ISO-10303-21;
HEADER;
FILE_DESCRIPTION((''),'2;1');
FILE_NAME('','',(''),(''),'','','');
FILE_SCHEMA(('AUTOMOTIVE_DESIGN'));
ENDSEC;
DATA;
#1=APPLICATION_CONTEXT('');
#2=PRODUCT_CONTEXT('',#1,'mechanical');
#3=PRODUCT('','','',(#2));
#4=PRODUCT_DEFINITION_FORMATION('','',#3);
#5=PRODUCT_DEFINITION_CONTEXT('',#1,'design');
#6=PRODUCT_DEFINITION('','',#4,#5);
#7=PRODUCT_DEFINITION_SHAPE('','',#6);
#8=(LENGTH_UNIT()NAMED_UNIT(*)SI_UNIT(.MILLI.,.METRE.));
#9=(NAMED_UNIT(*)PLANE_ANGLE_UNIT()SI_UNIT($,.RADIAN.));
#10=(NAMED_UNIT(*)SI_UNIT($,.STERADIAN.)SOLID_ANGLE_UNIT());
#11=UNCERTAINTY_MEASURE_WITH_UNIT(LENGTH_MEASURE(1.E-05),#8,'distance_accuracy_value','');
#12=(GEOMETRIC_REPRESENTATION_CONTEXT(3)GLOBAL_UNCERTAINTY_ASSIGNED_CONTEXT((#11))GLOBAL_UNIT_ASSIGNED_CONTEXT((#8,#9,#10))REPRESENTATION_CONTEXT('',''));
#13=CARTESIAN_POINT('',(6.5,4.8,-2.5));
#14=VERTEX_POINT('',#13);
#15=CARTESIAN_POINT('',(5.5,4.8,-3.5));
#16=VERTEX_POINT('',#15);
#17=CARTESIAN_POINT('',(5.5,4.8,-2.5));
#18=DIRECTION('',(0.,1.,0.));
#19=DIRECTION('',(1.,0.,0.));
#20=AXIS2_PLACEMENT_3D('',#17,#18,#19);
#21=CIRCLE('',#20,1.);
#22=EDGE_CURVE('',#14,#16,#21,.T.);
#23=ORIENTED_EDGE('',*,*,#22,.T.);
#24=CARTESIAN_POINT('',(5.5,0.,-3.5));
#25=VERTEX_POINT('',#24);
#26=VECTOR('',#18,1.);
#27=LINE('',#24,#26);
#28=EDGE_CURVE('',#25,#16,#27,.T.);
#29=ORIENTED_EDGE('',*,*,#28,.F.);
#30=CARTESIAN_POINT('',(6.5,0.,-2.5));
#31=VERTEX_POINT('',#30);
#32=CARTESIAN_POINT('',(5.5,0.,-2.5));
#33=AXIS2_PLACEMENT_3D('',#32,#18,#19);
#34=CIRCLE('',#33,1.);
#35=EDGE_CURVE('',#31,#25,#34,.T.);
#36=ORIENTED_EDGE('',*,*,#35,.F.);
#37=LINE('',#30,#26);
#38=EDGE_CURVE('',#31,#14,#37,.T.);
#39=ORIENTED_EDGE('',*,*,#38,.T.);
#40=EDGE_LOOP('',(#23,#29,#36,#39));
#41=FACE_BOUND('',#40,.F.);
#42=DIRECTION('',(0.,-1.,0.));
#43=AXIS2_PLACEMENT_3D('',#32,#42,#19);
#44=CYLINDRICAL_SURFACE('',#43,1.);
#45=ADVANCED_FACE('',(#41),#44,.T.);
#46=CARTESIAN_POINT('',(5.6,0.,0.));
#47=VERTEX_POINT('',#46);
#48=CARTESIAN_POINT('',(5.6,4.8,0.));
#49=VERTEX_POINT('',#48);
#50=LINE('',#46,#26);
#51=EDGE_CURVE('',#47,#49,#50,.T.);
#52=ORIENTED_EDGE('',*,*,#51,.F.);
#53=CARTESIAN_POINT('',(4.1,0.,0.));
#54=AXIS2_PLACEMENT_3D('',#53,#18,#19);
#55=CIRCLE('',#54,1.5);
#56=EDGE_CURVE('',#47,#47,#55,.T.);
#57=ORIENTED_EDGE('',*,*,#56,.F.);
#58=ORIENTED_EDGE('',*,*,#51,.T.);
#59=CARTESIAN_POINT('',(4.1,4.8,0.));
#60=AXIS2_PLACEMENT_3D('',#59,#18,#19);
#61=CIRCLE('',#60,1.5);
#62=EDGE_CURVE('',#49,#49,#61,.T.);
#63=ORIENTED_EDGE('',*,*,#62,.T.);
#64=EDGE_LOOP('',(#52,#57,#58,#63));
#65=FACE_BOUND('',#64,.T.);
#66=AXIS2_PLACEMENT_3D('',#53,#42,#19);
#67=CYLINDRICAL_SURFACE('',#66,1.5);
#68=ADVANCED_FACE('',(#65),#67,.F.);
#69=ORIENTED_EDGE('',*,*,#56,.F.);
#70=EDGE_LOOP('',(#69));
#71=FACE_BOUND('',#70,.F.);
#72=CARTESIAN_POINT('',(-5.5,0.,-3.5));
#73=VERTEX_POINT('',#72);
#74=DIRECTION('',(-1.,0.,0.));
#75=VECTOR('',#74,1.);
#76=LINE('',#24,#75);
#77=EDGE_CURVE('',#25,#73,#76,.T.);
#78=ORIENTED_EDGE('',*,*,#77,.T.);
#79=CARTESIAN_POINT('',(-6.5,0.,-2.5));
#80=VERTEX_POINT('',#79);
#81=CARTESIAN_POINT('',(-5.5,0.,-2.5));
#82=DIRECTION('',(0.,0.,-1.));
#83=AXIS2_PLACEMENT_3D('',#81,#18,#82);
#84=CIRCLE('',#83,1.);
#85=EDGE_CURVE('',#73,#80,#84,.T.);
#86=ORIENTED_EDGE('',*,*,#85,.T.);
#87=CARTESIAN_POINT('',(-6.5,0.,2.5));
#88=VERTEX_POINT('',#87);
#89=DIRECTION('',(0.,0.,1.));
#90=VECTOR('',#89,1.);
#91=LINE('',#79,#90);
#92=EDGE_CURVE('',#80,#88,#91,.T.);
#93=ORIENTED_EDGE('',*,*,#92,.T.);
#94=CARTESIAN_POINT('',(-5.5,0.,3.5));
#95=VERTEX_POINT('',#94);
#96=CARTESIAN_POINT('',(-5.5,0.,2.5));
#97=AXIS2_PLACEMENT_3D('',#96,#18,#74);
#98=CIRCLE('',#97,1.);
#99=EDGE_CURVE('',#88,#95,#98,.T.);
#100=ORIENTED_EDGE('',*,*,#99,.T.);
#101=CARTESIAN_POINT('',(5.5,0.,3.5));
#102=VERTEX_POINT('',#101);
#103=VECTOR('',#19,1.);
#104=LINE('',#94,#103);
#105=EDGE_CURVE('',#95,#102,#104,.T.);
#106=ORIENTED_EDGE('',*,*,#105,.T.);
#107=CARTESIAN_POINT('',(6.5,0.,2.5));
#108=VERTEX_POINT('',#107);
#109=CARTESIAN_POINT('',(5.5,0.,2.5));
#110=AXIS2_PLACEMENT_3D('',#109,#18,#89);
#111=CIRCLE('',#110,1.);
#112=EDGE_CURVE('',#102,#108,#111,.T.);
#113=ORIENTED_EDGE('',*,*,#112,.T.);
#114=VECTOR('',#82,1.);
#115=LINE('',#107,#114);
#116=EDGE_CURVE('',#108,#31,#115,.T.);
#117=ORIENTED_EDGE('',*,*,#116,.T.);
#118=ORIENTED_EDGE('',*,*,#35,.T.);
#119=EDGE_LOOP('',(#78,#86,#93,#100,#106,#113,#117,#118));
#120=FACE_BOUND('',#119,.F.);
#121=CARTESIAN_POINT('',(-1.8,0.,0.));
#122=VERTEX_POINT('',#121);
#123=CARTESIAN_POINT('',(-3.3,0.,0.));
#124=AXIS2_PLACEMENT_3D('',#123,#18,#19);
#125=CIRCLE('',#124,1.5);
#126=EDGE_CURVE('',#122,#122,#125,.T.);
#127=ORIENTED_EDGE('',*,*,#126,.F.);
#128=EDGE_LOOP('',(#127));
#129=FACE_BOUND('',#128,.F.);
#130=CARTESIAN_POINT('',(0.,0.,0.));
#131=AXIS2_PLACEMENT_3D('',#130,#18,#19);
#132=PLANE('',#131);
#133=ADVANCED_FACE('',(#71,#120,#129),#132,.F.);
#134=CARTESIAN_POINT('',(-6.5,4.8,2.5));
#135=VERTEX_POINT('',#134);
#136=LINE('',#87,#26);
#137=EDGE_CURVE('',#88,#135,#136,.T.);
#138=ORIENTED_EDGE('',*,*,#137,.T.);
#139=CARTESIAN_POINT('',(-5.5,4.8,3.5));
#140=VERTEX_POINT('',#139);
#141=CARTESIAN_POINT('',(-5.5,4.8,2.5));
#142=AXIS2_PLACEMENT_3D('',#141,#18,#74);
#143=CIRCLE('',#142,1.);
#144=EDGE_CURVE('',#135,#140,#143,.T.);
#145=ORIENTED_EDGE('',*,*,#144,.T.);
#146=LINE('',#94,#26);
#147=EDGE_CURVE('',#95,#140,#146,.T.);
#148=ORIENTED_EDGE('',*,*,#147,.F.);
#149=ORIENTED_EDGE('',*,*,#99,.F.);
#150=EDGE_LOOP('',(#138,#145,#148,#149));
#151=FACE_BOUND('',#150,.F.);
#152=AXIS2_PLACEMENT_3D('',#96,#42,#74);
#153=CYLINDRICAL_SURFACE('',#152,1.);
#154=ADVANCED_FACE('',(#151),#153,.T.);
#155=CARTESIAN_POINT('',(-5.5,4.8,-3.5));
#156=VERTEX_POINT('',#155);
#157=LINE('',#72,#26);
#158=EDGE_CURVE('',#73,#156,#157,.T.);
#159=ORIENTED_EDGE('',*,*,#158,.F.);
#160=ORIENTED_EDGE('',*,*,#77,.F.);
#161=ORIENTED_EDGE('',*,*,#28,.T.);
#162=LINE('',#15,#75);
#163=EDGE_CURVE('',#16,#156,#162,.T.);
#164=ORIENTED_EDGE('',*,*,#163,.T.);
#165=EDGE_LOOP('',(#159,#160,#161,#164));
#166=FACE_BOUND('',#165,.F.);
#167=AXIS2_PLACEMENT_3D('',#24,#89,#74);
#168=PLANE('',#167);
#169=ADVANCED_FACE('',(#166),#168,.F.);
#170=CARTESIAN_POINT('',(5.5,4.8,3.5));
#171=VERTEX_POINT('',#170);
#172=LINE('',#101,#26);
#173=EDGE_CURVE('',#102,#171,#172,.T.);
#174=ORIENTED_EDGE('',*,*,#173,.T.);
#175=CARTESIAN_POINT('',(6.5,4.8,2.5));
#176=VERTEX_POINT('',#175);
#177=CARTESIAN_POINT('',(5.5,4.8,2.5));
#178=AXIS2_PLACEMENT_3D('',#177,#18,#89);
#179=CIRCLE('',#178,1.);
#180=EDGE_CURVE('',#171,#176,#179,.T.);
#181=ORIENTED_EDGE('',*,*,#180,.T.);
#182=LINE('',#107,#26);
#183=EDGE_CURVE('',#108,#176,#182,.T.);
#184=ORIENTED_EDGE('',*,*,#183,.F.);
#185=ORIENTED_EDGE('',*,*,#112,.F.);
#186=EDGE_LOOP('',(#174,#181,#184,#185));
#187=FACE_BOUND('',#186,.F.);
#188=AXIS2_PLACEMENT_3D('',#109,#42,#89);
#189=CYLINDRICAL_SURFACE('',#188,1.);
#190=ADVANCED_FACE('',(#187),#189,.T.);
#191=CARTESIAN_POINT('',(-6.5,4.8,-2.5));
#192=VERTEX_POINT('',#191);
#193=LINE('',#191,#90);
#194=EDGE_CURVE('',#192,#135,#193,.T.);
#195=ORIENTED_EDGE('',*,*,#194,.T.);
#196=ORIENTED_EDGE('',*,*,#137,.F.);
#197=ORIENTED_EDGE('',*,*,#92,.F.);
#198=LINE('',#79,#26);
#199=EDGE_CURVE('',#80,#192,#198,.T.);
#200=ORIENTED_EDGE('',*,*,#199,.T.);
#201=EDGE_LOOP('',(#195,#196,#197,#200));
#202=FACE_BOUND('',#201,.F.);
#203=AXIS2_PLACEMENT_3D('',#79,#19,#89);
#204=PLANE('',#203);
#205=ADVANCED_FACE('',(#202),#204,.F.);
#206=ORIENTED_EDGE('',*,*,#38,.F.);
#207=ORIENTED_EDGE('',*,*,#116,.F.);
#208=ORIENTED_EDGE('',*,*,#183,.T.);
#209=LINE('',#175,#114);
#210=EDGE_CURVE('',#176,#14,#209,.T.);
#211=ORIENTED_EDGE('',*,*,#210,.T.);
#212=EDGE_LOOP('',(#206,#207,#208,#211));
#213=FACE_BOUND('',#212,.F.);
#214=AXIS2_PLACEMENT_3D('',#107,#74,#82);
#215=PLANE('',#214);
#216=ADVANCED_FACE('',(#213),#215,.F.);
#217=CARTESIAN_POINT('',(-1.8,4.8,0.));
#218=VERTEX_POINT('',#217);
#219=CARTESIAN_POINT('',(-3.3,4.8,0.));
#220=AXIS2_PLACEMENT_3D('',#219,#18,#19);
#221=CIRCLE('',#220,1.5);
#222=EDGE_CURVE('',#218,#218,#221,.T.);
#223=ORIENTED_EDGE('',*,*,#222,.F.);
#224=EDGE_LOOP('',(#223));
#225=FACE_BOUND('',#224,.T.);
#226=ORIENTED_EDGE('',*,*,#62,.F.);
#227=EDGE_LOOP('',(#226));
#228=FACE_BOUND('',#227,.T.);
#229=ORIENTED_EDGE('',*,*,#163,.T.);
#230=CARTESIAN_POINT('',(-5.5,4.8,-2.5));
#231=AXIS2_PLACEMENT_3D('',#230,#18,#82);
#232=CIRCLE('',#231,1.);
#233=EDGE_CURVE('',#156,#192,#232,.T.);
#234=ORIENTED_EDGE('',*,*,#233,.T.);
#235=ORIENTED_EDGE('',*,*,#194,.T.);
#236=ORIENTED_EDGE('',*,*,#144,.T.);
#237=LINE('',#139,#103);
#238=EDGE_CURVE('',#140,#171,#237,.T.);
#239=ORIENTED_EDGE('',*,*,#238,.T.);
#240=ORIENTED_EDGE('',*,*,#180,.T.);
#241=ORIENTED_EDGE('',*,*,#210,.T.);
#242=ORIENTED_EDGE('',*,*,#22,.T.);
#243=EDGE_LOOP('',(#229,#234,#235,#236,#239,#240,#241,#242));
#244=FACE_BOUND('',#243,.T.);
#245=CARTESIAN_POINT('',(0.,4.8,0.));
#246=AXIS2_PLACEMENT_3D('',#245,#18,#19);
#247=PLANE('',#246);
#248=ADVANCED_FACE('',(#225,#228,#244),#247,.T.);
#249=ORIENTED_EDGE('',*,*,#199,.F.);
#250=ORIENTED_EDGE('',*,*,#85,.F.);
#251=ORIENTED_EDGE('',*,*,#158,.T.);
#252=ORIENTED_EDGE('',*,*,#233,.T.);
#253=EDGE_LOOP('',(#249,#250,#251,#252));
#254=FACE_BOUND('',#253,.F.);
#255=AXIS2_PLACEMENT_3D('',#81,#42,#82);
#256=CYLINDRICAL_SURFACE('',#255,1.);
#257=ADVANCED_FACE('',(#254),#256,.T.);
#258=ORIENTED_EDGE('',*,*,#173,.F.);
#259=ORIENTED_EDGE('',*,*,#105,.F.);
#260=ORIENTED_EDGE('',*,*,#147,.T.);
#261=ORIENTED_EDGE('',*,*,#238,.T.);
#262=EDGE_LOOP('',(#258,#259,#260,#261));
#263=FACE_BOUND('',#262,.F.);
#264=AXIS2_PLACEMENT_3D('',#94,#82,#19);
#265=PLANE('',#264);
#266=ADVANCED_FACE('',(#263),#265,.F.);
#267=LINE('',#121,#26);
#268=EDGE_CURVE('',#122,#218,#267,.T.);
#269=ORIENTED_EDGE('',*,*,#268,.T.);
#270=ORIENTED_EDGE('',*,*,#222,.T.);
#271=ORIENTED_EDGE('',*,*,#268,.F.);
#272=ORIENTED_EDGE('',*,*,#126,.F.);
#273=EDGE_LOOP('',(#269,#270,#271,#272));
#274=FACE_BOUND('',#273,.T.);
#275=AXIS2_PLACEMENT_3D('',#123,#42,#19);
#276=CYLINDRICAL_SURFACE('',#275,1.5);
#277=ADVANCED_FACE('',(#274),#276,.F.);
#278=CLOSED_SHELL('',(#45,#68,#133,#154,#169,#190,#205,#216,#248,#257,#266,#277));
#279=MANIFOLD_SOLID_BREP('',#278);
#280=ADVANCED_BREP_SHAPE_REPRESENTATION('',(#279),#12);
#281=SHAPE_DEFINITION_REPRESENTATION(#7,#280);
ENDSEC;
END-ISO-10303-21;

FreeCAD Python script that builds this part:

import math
import FreeCAD as App
import Part
import Sketcher
Q = App.Units.Quantity

doc = App.newDocument("Part")
body = doc.addObject("PartDesign::Body", "Body")

# Sketch on XZ plane
sketch1 = doc.addObject("Sketcher::SketchObject", "Sketch")
body.addObject(sketch1)
sketch1.AttachmentSupport = (doc.XZ_Plane, [""])
sketch1.MapMode = "FlatFace"
sketch1.addGeometry([
    Part.ArcOfCircle(Part.Circle(App.Vector(-5.5, 2.5, 0), App.Vector(0, 0, 1), 1), math.radians(90), math.radians(180)),  # 0
    Part.LineSegment(App.Vector(-5.5, 3.5, 0), App.Vector(5.5, 3.5, 0)),  # 1
    Part.ArcOfCircle(Part.Circle(App.Vector(5.5, 2.5, 0), App.Vector(0, 0, 1), 1), math.radians(0), math.radians(90)),  # 2
    Part.LineSegment(App.Vector(6.5, 2.5, 0), App.Vector(6.5, -2.5, 0)),  # 3
    Part.ArcOfCircle(Part.Circle(App.Vector(5.5, -2.5, 0), App.Vector(0, 0, 1), 1), math.radians(-90), math.radians(0)),  # 4
    Part.LineSegment(App.Vector(5.5, -3.5, 0), App.Vector(-5.5, -3.5, 0)),  # 5
    Part.ArcOfCircle(Part.Circle(App.Vector(-5.5, -2.5, 0), App.Vector(0, 0, 1), 1), math.radians(180), math.radians(270)),  # 6
    Part.LineSegment(App.Vector(-6.5, -2.5, 0), App.Vector(-6.5, 2.5, 0)),  # 7
    Part.Circle(App.Vector(-3.3, 0, 0), App.Vector(0, 0, 1), 1.5),  # 8
    Part.Circle(App.Vector(4.1, 0, 0), App.Vector(0, 0, 1), 1.5),  # 9
], False)
sketch1.addConstraint([
    Sketcher.Constraint("Tangent", 0, 1, 1, 1),
    Sketcher.Constraint("Tangent", 1, 2, 2, 2),
    Sketcher.Constraint("Tangent", 2, 1, 3, 1),
    Sketcher.Constraint("Tangent", 3, 2, 4, 2),
    Sketcher.Constraint("Tangent", 4, 1, 5, 1),
    Sketcher.Constraint("Tangent", 5, 2, 6, 2),
    Sketcher.Constraint("Tangent", 6, 1, 7, 1),
    Sketcher.Constraint("Tangent", 7, 2, 0, 2),
    Sketcher.Constraint("Horizontal", 1),
    Sketcher.Constraint("Vertical", 3),
    Sketcher.Constraint("Horizontal", 5),
    Sketcher.Constraint("Vertical", 7),
    Sketcher.Constraint("Equal", 0, 2),
    Sketcher.Constraint("Equal", 2, 4),
    Sketcher.Constraint("Equal", 4, 6),
    Sketcher.Constraint("Equal", 8, 9),
    Sketcher.Constraint("Symmetric", 0, 3, 4, 3, -1, 1),
    Sketcher.Constraint("PointOnObject", 8, 3, -1),
    Sketcher.Constraint("PointOnObject", 9, 3, -1),
    Sketcher.Constraint("Diameter", 8, Q("3 mm")),
    Sketcher.Constraint("Radius", 0, Q("1 mm")),
    Sketcher.Constraint("DistanceY", 3, 2, 3, 1, Q("5 mm")),
    Sketcher.Constraint("DistanceX", 9, 3, 2, 1, Q("2.4 mm")),
    Sketcher.Constraint("DistanceX", 1, 1, 1, 2, Q("11 mm")),
    Sketcher.Constraint("DistanceX", 8, 3, -1, 1, Q("3.3 mm")),
])
pad1 = doc.addObject("PartDesign::Pad", "Pad")
body.addObject(pad1)
pad1.Profile = sketch1
pad1.Length = 4.8
pad1.Reversed = True

doc.recompute()
